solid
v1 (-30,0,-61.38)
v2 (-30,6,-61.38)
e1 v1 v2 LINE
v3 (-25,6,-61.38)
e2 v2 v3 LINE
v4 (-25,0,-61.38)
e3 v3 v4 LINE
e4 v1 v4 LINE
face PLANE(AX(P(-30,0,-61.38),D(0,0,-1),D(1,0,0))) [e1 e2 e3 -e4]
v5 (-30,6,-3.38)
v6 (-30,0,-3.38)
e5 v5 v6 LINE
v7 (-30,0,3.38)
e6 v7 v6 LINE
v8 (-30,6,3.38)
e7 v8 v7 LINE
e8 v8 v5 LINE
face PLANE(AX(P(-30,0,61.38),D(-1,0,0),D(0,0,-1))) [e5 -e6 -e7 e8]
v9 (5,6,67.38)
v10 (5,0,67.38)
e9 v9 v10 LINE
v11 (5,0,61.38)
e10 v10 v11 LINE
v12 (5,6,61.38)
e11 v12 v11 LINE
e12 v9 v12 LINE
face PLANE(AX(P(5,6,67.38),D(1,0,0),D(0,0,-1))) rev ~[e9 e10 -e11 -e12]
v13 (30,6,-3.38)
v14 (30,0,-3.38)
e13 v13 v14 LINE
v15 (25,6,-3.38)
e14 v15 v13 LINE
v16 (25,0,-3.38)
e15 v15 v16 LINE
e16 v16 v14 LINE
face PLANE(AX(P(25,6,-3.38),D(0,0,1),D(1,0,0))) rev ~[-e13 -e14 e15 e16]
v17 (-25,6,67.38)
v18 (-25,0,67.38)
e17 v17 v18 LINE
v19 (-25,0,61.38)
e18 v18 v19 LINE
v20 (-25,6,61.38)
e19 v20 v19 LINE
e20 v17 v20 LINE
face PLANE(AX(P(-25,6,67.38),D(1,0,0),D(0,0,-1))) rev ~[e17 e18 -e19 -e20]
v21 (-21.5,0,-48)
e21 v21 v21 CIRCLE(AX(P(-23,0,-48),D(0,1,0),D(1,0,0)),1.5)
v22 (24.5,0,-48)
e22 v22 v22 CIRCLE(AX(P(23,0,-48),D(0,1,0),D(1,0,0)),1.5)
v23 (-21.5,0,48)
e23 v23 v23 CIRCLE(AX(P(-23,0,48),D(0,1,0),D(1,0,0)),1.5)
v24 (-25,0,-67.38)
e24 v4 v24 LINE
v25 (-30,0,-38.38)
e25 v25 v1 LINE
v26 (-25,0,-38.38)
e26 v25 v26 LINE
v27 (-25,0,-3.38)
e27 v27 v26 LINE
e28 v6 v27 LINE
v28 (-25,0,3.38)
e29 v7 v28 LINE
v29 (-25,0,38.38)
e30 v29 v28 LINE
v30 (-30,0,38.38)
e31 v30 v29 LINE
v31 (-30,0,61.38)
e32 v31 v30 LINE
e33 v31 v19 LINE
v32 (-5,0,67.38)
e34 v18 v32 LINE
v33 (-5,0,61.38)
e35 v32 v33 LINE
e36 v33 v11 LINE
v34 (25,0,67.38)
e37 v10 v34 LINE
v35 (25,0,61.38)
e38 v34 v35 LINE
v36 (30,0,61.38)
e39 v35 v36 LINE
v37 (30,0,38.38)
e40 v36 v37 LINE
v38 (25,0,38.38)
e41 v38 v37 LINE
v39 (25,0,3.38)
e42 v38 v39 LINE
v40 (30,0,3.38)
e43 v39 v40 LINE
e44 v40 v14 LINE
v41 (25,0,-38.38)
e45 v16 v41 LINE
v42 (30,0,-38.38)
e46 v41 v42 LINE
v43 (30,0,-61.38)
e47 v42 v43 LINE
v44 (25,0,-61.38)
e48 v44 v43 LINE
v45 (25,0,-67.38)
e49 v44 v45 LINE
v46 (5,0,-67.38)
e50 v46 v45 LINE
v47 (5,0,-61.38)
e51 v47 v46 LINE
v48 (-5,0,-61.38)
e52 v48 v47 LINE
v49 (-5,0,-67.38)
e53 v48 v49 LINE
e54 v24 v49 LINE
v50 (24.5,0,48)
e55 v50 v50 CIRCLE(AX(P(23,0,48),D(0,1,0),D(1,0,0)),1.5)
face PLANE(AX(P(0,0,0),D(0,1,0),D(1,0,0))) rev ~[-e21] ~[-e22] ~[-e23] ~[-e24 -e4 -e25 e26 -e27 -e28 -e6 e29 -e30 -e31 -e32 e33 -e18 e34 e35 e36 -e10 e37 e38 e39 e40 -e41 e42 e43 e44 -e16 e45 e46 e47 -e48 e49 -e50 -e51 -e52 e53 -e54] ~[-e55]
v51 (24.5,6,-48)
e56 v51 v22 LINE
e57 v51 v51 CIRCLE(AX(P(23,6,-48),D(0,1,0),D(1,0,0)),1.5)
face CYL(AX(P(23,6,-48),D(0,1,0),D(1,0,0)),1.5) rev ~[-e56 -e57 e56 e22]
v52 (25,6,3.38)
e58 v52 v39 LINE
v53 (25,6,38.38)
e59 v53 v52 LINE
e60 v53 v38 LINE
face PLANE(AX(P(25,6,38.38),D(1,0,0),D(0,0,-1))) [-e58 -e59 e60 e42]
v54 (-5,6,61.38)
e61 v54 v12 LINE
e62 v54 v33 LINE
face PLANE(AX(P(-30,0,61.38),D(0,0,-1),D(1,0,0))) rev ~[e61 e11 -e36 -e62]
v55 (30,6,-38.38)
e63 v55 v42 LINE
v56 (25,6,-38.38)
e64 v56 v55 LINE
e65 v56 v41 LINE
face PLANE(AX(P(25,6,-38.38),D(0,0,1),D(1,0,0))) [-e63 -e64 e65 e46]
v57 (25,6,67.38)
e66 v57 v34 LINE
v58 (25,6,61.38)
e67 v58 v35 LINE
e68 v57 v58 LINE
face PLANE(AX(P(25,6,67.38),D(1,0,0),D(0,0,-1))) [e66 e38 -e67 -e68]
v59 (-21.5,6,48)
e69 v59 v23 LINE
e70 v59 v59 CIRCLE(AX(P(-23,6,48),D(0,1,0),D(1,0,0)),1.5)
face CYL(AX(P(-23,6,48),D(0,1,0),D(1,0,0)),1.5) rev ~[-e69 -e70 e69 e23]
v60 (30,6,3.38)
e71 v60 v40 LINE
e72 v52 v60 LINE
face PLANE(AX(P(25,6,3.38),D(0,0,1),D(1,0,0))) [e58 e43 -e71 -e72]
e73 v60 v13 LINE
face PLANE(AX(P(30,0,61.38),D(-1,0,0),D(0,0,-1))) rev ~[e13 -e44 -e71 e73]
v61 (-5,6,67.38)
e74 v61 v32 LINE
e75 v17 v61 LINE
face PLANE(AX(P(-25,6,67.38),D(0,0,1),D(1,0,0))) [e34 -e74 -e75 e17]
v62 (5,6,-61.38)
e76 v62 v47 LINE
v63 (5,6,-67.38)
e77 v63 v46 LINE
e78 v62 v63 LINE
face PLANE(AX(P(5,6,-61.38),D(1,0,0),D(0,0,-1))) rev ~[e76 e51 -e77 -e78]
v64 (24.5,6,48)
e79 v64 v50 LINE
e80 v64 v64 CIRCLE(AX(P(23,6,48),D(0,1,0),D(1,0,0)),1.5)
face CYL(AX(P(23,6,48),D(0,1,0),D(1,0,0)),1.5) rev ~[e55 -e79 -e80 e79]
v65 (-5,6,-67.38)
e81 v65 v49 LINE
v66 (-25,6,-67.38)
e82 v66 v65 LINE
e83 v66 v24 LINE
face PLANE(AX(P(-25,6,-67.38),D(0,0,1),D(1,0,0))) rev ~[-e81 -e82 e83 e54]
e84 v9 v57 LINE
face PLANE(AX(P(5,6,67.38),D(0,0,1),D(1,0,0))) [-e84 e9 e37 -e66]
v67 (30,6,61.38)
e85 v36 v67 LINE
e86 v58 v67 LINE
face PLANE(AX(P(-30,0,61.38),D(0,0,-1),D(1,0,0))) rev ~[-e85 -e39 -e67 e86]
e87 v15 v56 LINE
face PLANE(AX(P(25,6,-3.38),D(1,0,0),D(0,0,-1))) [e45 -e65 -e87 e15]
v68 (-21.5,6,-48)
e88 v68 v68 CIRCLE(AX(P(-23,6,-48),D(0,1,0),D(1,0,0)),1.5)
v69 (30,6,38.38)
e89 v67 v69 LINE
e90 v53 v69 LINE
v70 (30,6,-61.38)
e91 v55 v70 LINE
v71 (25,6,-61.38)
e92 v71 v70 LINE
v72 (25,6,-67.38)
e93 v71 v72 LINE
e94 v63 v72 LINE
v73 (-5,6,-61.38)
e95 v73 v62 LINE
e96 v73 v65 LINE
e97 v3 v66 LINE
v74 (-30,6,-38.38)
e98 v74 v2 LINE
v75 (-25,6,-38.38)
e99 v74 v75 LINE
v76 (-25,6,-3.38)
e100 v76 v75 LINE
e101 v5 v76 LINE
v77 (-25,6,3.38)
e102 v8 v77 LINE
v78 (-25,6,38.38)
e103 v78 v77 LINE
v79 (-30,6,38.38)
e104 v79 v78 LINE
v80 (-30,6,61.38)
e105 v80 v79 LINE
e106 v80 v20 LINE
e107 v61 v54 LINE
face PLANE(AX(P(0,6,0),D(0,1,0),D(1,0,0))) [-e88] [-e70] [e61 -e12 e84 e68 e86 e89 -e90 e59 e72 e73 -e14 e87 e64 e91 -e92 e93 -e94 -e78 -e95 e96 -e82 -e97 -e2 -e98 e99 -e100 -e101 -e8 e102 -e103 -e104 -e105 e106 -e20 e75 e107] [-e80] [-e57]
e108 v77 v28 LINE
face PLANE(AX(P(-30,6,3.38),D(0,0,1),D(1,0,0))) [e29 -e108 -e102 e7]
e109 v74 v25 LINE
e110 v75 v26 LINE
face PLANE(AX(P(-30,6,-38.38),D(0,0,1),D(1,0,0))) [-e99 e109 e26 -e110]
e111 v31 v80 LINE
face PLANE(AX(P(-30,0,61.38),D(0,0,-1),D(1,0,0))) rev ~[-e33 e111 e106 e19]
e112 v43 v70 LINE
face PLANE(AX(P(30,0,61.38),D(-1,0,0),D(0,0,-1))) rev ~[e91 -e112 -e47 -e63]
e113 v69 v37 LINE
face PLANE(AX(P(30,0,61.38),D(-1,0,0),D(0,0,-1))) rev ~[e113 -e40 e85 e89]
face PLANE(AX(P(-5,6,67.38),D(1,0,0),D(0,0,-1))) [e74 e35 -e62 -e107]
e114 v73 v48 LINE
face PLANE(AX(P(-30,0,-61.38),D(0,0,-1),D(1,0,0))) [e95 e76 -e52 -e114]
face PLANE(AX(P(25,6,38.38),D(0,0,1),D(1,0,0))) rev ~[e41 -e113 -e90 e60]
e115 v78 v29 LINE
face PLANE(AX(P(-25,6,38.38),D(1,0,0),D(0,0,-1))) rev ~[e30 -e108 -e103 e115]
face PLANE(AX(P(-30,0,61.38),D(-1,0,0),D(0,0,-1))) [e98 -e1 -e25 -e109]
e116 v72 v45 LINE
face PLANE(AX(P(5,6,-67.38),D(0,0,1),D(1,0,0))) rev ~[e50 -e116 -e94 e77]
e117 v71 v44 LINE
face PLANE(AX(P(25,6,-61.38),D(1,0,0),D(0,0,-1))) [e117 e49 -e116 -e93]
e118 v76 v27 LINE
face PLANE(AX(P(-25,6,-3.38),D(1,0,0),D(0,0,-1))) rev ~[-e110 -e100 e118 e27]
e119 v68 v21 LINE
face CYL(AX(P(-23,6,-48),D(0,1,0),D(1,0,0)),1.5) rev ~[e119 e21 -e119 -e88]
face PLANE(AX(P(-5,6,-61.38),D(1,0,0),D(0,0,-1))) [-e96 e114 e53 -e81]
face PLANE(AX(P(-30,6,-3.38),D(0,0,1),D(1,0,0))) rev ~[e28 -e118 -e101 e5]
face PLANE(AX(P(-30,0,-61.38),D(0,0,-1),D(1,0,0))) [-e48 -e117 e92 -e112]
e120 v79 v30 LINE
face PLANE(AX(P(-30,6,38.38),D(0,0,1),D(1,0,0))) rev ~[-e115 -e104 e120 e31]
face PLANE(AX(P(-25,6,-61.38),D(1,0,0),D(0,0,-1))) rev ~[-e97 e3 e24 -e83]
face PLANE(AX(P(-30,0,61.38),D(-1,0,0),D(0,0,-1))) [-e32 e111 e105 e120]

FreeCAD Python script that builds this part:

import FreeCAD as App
import Part
import Sketcher


def add_polygon(sketch, points):
    """Adds a closed chain of lines whose ends are joined by coincident constraints."""
    first, n = sketch.GeometryCount, len(points)
    for a, b in zip(points, points[1:] + points[:1]):
        sketch.addGeometry(Part.LineSegment(App.Vector(*a, 0), App.Vector(*b, 0)), False)
    for i in range(n):
        sketch.addConstraint(Sketcher.Constraint("Coincident", first + i, 2, first + (i + 1) % n, 1))

doc = App.newDocument("Part")
body = doc.addObject("PartDesign::Body", "Body")

# Sketch on XZ plane
sketch1 = doc.addObject("Sketcher::SketchObject", "Sketch")
body.addObject(sketch1)
sketch1.AttachmentSupport = (doc.XZ_Plane, [""])
sketch1.MapMode = "FlatFace"
add_polygon(sketch1, [(-30, -61), (-30, 61), (30, 61), (30, -61)])  # lines 0-3
sketch1.addConstraint([
    Sketcher.Constraint("Vertical", 0),
    Sketcher.Constraint("Horizontal", 1),
    Sketcher.Constraint("Vertical", 2),
    Sketcher.Constraint("Horizontal", 3),
    Sketcher.Constraint("Symmetric", 0, 2, 2, 2, -1, 1),
    Sketcher.Constraint("DistanceX", 1, 1, 1, 2, 60.0),
    Sketcher.Constraint("DistanceY", 0, 1, 0, 2, 122.76),
])
pad1 = doc.addObject("PartDesign::Pad", "Pad")
body.addObject(pad1)
pad1.Profile = sketch1
pad1.Length = 6
pad1.Reversed = True

# Sketch on XZ plane
sketch2 = doc.addObject("Sketcher::SketchObject", "Sketch001")
body.addObject(sketch2)
sketch2.AttachmentSupport = (doc.XZ_Plane, [""])
sketch2.MapMode = "FlatFace"
sketch2.AttachmentOffset = App.Placement(App.Vector(0, 0, -6), App.Rotation())
add_polygon(sketch2, [(-25, -67), (-25, -61), (-5, -61), (-5, -67)])  # lines 0-3
add_polygon(sketch2, [(5, -67), (5, -61), (25, -61), (25, -67)])  # lines 4-7
add_polygon(sketch2, [(5, 61), (5, 67), (25, 67), (25, 61)])  # lines 8-11
add_polygon(sketch2, [(-25, 61), (-25, 67), (-5, 67), (-5, 61)])  # lines 12-15
sketch2.addConstraint([
    Sketcher.Constraint("Vertical", 0),
    Sketcher.Constraint("Horizontal", 1),
    Sketcher.Constraint("Vertical", 2),
    Sketcher.Constraint("Horizontal", 3),
    Sketcher.Constraint("Vertical", 4),
    Sketcher.Constraint("Horizontal", 5),
    Sketcher.Constraint("Vertical", 6),
    Sketcher.Constraint("Horizontal", 7),
    Sketcher.Constraint("Vertical", 8),
    Sketcher.Constraint("Horizontal", 9),
    Sketcher.Constraint("Vertical", 10),
    Sketcher.Constraint("Horizontal", 11),
    Sketcher.Constraint("Vertical", 12),
    Sketcher.Constraint("Horizontal", 13),
    Sketcher.Constraint("Vertical", 14),
    Sketcher.Constraint("Horizontal", 15),
    Sketcher.Constraint("Symmetric", 2, 2, 8, 2, -1, 1),
    Sketcher.Constraint("Symmetric", 0, 2, 10, 2, -1, 1),
    Sketcher.Constraint("Symmetric", 6, 2, 12, 2, -1, 1),
    Sketcher.Constraint("Symmetric", 4, 2, 14, 2, -1, 1),
    Sketcher.Constraint("Symmetric", 1, 2, 4, 2, -2),
    Sketcher.Constraint("Symmetric", 3, 2, 6, 2, -2),
    Sketcher.Constraint("DistanceX", 1, 1, 1, 2, 20.0),
    Sketcher.Constraint("DistanceY", 0, 1, 0, 2, 6.0),
    Sketcher.Constraint("DistanceX", 0, 2, -1, 1, 25.0),
    Sketcher.Constraint("DistanceY", 0, 2, -1, 1, 61.38),
])
pad2 = doc.addObject("PartDesign::Pad", "Pad001")
body.addObject(pad2)
pad2.Profile = sketch2
pad2.Length = 6

# Sketch on XZ plane
sketch3 = doc.addObject("Sketcher::SketchObject", "Sketch002")
body.addObject(sketch3)
sketch3.AttachmentSupport = (doc.XZ_Plane, [""])
sketch3.MapMode = "FlatFace"
sketch3.AttachmentOffset = App.Placement(App.Vector(0, 0, -6), App.Rotation())
sketch3.addGeometry([
    Part.Circle(App.Vector(23, -48, 0), App.Vector(0, 0, 1), 1.5),
    Part.Circle(App.Vector(-23, -48, 0), App.Vector(0, 0, 1), 1.5),
    Part.Circle(App.Vector(-23, 48, 0), App.Vector(0, 0, 1), 1.5),
    Part.Circle(App.Vector(23, 48, 0), App.Vector(0, 0, 1), 1.5),
], False)
sketch3.addConstraint([
    Sketcher.Constraint("Equal", 0, 1),
    Sketcher.Constraint("Equal", 1, 2),
    Sketcher.Constraint("Equal", 2, 3),
    Sketcher.Constraint("Symmetric", 0, 3, 2, 3, -1, 1),
    Sketcher.Constraint("Symmetric", 1, 3, 3, 3, -1, 1),
    Sketcher.Constraint("Symmetric", 0, 3, 1, 3, -2),
    Sketcher.Constraint("Diameter", 0, 3.0),
    Sketcher.Constraint("DistanceX", -1, 1, 0, 3, 23.0),
    Sketcher.Constraint("DistanceY", 0, 3, -1, 1, 48.0),
])
pocket1 = doc.addObject("PartDesign::Pocket", "Pocket")
body.addObject(pocket1)
pocket1.Profile = sketch3
pocket1.Length = 6
pocket1.Reversed = True

# Sketch on XZ plane
sketch4 = doc.addObject("Sketcher::SketchObject", "Sketch003")
body.addObject(sketch4)
sketch4.AttachmentSupport = (doc.XZ_Plane, [""])
sketch4.MapMode = "FlatFace"
sketch4.AttachmentOffset = App.Placement(App.Vector(0, 0, -6), App.Rotation())
add_polygon(sketch4, [(-30, 3), (-30, 38), (-25, 38), (-25, 3)])  # lines 0-3
add_polygon(sketch4, [(25, 3), (25, 38), (30, 38), (30, 3)])  # lines 4-7
add_polygon(sketch4, [(-30, -38), (-30, -3), (-25, -3), (-25, -38)])  # lines 8-11
add_polygon(sketch4, [(25, -38), (25, -3), (30, -3), (30, -38)])  # lines 12-15
sketch4.addConstraint([
    Sketcher.Constraint("Vertical", 0),
    Sketcher.Constraint("Horizontal", 1),
    Sketcher.Constraint("Vertical", 2),
    Sketcher.Constraint("Horizontal", 3),
    Sketcher.Constraint("Vertical", 4),
    Sketcher.Constraint("Horizontal", 5),
    Sketcher.Constraint("Vertical", 6),
    Sketcher.Constraint("Horizontal", 7),
    Sketcher.Constraint("Vertical", 8),
    Sketcher.Constraint("Horizontal", 9),
    Sketcher.Constraint("Vertical", 10),
    Sketcher.Constraint("Horizontal", 11),
    Sketcher.Constraint("Vertical", 12),
    Sketcher.Constraint("Horizontal", 13),
    Sketcher.Constraint("Vertical", 14),
    Sketcher.Constraint("Horizontal", 15),
    Sketcher.Constraint("Symmetric", 6, 2, 8, 2, -1, 1),
    Sketcher.Constraint("Symmetric", 4, 2, 10, 2, -1, 1),
    Sketcher.Constraint("Symmetric", 2, 2, 12, 2, -1, 1),
    Sketcher.Constraint("Symmetric", 0, 2, 14, 2, -1, 1),
    Sketcher.Constraint("Symmetric", 1, 2, 4, 2, -2),
    Sketcher.Constraint("Symmetric", 3, 2, 6, 2, -2),
    Sketcher.Constraint("DistanceX", 1, 1, 1, 2, 5.0),
    Sketcher.Constraint("DistanceY", 0, 1, 0, 2, 35.0),
    Sketcher.Constraint("DistanceX", 0, 2, -1, 1, 30.0),
    Sketcher.Constraint("DistanceY", -1, 1, 0, 2, 38.38),
])
pocket2 = doc.addObject("PartDesign::Pocket", "Pocket001")
body.addObject(pocket2)
pocket2.Profile = sketch4
pocket2.Length = 6
pocket2.Reversed = True

doc.recompute()
